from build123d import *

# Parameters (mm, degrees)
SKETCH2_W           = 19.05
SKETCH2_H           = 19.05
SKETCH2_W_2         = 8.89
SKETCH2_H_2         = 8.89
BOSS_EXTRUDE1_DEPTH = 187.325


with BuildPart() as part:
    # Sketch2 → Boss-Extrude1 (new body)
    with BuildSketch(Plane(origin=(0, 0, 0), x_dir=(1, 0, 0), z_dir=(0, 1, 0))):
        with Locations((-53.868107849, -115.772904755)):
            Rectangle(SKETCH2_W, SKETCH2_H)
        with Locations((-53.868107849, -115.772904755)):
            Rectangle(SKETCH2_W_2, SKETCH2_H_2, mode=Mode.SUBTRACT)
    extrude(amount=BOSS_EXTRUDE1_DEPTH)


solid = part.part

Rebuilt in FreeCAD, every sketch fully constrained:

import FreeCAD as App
import Part
import Sketcher
Q = App.Units.Quantity

doc = App.newDocument("Part")
params = doc.addObject("Spreadsheet::Sheet", "Params")
for row, (alias, value) in enumerate([
    ("sketch1_width", "0.75 in"),
    ("sketch1_width2", "0.35 in"),
    ("pad1_length", "7.375 in"),
], start=1):
    params.set(f"A{row}", alias)
    params.set(f"B{row}", "=" + value)
    params.setAlias(f"B{row}", alias)

body = doc.addObject("PartDesign::Body", "Body")

# Sketch on XZ plane
sketch1 = body.newObject("Sketcher::SketchObject", "Sketch")
sketch1.AttachmentSupport = (doc.getObject("XZ_Plane"), [""])
sketch1.MapMode = "FlatFace"
sketch1.addGeometry([
    Part.LineSegment(App.Vector(-63, 106, 0), App.Vector(-63, 125, 0)),  # 0
    Part.LineSegment(App.Vector(-63, 125, 0), App.Vector(-44, 125, 0)),  # 1
    Part.LineSegment(App.Vector(-44, 125, 0), App.Vector(-44, 106, 0)),  # 2
    Part.LineSegment(App.Vector(-44, 106, 0), App.Vector(-63, 106, 0)),  # 3
    Part.LineSegment(App.Vector(-49, 120, 0), App.Vector(-58, 120, 0)),  # 4
    Part.LineSegment(App.Vector(-58, 120, 0), App.Vector(-58, 111, 0)),  # 5
    Part.LineSegment(App.Vector(-58, 111, 0), App.Vector(-49, 111, 0)),  # 6
    Part.LineSegment(App.Vector(-49, 111, 0), App.Vector(-49, 120, 0)),  # 7
], False)
sketch1.addConstraint([
    Sketcher.Constraint("Coincident", 0, 2, 1, 1),
    Sketcher.Constraint("Coincident", 1, 2, 2, 1),
    Sketcher.Constraint("Coincident", 2, 2, 3, 1),
    Sketcher.Constraint("Coincident", 3, 2, 0, 1),
    Sketcher.Constraint("Coincident", 4, 2, 5, 1),
    Sketcher.Constraint("Coincident", 5, 2, 6, 1),
    Sketcher.Constraint("Coincident", 6, 2, 7, 1),
    Sketcher.Constraint("Coincident", 7, 2, 4, 1),
    Sketcher.Constraint("Vertical", 0),
    Sketcher.Constraint("Horizontal", 1),
    Sketcher.Constraint("Vertical", 2),
    Sketcher.Constraint("Horizontal", 3),
    Sketcher.Constraint("Horizontal", 4),
    Sketcher.Constraint("Vertical", 5),
    Sketcher.Constraint("Horizontal", 6),
    Sketcher.Constraint("Vertical", 7),
    Sketcher.Constraint("Equal", 3, 0),
    Sketcher.Constraint("Equal", 6, 5),
    Sketcher.Constraint("DistanceX", 1, 1, 1, 2, Q("0.75 in")),
    Sketcher.Constraint("DistanceX", 4, 2, 4, 1, Q("0.35 in")),
    Sketcher.Constraint("DistanceX", 0, 2, 4, 2, Q("0.2 in")),
    Sketcher.Constraint("DistanceY", 4, 2, 0, 2, Q("0.2 in")),
    Sketcher.Constraint("DistanceX", 0, 2, -1, 1, 63.393108),
    Sketcher.Constraint("DistanceY", -1, 1, 0, 2, 125.297905),
])
sketch1.setExpression("Constraints[18]", "Params.sketch1_width")
sketch1.setExpression("Constraints[19]", "Params.sketch1_width2")
pad1 = body.newObject("PartDesign::Pad", "Pad")
pad1.Profile = sketch1
pad1.setExpression("Length", "Params.pad1_length")
pad1.Reversed = True

doc.recompute()
